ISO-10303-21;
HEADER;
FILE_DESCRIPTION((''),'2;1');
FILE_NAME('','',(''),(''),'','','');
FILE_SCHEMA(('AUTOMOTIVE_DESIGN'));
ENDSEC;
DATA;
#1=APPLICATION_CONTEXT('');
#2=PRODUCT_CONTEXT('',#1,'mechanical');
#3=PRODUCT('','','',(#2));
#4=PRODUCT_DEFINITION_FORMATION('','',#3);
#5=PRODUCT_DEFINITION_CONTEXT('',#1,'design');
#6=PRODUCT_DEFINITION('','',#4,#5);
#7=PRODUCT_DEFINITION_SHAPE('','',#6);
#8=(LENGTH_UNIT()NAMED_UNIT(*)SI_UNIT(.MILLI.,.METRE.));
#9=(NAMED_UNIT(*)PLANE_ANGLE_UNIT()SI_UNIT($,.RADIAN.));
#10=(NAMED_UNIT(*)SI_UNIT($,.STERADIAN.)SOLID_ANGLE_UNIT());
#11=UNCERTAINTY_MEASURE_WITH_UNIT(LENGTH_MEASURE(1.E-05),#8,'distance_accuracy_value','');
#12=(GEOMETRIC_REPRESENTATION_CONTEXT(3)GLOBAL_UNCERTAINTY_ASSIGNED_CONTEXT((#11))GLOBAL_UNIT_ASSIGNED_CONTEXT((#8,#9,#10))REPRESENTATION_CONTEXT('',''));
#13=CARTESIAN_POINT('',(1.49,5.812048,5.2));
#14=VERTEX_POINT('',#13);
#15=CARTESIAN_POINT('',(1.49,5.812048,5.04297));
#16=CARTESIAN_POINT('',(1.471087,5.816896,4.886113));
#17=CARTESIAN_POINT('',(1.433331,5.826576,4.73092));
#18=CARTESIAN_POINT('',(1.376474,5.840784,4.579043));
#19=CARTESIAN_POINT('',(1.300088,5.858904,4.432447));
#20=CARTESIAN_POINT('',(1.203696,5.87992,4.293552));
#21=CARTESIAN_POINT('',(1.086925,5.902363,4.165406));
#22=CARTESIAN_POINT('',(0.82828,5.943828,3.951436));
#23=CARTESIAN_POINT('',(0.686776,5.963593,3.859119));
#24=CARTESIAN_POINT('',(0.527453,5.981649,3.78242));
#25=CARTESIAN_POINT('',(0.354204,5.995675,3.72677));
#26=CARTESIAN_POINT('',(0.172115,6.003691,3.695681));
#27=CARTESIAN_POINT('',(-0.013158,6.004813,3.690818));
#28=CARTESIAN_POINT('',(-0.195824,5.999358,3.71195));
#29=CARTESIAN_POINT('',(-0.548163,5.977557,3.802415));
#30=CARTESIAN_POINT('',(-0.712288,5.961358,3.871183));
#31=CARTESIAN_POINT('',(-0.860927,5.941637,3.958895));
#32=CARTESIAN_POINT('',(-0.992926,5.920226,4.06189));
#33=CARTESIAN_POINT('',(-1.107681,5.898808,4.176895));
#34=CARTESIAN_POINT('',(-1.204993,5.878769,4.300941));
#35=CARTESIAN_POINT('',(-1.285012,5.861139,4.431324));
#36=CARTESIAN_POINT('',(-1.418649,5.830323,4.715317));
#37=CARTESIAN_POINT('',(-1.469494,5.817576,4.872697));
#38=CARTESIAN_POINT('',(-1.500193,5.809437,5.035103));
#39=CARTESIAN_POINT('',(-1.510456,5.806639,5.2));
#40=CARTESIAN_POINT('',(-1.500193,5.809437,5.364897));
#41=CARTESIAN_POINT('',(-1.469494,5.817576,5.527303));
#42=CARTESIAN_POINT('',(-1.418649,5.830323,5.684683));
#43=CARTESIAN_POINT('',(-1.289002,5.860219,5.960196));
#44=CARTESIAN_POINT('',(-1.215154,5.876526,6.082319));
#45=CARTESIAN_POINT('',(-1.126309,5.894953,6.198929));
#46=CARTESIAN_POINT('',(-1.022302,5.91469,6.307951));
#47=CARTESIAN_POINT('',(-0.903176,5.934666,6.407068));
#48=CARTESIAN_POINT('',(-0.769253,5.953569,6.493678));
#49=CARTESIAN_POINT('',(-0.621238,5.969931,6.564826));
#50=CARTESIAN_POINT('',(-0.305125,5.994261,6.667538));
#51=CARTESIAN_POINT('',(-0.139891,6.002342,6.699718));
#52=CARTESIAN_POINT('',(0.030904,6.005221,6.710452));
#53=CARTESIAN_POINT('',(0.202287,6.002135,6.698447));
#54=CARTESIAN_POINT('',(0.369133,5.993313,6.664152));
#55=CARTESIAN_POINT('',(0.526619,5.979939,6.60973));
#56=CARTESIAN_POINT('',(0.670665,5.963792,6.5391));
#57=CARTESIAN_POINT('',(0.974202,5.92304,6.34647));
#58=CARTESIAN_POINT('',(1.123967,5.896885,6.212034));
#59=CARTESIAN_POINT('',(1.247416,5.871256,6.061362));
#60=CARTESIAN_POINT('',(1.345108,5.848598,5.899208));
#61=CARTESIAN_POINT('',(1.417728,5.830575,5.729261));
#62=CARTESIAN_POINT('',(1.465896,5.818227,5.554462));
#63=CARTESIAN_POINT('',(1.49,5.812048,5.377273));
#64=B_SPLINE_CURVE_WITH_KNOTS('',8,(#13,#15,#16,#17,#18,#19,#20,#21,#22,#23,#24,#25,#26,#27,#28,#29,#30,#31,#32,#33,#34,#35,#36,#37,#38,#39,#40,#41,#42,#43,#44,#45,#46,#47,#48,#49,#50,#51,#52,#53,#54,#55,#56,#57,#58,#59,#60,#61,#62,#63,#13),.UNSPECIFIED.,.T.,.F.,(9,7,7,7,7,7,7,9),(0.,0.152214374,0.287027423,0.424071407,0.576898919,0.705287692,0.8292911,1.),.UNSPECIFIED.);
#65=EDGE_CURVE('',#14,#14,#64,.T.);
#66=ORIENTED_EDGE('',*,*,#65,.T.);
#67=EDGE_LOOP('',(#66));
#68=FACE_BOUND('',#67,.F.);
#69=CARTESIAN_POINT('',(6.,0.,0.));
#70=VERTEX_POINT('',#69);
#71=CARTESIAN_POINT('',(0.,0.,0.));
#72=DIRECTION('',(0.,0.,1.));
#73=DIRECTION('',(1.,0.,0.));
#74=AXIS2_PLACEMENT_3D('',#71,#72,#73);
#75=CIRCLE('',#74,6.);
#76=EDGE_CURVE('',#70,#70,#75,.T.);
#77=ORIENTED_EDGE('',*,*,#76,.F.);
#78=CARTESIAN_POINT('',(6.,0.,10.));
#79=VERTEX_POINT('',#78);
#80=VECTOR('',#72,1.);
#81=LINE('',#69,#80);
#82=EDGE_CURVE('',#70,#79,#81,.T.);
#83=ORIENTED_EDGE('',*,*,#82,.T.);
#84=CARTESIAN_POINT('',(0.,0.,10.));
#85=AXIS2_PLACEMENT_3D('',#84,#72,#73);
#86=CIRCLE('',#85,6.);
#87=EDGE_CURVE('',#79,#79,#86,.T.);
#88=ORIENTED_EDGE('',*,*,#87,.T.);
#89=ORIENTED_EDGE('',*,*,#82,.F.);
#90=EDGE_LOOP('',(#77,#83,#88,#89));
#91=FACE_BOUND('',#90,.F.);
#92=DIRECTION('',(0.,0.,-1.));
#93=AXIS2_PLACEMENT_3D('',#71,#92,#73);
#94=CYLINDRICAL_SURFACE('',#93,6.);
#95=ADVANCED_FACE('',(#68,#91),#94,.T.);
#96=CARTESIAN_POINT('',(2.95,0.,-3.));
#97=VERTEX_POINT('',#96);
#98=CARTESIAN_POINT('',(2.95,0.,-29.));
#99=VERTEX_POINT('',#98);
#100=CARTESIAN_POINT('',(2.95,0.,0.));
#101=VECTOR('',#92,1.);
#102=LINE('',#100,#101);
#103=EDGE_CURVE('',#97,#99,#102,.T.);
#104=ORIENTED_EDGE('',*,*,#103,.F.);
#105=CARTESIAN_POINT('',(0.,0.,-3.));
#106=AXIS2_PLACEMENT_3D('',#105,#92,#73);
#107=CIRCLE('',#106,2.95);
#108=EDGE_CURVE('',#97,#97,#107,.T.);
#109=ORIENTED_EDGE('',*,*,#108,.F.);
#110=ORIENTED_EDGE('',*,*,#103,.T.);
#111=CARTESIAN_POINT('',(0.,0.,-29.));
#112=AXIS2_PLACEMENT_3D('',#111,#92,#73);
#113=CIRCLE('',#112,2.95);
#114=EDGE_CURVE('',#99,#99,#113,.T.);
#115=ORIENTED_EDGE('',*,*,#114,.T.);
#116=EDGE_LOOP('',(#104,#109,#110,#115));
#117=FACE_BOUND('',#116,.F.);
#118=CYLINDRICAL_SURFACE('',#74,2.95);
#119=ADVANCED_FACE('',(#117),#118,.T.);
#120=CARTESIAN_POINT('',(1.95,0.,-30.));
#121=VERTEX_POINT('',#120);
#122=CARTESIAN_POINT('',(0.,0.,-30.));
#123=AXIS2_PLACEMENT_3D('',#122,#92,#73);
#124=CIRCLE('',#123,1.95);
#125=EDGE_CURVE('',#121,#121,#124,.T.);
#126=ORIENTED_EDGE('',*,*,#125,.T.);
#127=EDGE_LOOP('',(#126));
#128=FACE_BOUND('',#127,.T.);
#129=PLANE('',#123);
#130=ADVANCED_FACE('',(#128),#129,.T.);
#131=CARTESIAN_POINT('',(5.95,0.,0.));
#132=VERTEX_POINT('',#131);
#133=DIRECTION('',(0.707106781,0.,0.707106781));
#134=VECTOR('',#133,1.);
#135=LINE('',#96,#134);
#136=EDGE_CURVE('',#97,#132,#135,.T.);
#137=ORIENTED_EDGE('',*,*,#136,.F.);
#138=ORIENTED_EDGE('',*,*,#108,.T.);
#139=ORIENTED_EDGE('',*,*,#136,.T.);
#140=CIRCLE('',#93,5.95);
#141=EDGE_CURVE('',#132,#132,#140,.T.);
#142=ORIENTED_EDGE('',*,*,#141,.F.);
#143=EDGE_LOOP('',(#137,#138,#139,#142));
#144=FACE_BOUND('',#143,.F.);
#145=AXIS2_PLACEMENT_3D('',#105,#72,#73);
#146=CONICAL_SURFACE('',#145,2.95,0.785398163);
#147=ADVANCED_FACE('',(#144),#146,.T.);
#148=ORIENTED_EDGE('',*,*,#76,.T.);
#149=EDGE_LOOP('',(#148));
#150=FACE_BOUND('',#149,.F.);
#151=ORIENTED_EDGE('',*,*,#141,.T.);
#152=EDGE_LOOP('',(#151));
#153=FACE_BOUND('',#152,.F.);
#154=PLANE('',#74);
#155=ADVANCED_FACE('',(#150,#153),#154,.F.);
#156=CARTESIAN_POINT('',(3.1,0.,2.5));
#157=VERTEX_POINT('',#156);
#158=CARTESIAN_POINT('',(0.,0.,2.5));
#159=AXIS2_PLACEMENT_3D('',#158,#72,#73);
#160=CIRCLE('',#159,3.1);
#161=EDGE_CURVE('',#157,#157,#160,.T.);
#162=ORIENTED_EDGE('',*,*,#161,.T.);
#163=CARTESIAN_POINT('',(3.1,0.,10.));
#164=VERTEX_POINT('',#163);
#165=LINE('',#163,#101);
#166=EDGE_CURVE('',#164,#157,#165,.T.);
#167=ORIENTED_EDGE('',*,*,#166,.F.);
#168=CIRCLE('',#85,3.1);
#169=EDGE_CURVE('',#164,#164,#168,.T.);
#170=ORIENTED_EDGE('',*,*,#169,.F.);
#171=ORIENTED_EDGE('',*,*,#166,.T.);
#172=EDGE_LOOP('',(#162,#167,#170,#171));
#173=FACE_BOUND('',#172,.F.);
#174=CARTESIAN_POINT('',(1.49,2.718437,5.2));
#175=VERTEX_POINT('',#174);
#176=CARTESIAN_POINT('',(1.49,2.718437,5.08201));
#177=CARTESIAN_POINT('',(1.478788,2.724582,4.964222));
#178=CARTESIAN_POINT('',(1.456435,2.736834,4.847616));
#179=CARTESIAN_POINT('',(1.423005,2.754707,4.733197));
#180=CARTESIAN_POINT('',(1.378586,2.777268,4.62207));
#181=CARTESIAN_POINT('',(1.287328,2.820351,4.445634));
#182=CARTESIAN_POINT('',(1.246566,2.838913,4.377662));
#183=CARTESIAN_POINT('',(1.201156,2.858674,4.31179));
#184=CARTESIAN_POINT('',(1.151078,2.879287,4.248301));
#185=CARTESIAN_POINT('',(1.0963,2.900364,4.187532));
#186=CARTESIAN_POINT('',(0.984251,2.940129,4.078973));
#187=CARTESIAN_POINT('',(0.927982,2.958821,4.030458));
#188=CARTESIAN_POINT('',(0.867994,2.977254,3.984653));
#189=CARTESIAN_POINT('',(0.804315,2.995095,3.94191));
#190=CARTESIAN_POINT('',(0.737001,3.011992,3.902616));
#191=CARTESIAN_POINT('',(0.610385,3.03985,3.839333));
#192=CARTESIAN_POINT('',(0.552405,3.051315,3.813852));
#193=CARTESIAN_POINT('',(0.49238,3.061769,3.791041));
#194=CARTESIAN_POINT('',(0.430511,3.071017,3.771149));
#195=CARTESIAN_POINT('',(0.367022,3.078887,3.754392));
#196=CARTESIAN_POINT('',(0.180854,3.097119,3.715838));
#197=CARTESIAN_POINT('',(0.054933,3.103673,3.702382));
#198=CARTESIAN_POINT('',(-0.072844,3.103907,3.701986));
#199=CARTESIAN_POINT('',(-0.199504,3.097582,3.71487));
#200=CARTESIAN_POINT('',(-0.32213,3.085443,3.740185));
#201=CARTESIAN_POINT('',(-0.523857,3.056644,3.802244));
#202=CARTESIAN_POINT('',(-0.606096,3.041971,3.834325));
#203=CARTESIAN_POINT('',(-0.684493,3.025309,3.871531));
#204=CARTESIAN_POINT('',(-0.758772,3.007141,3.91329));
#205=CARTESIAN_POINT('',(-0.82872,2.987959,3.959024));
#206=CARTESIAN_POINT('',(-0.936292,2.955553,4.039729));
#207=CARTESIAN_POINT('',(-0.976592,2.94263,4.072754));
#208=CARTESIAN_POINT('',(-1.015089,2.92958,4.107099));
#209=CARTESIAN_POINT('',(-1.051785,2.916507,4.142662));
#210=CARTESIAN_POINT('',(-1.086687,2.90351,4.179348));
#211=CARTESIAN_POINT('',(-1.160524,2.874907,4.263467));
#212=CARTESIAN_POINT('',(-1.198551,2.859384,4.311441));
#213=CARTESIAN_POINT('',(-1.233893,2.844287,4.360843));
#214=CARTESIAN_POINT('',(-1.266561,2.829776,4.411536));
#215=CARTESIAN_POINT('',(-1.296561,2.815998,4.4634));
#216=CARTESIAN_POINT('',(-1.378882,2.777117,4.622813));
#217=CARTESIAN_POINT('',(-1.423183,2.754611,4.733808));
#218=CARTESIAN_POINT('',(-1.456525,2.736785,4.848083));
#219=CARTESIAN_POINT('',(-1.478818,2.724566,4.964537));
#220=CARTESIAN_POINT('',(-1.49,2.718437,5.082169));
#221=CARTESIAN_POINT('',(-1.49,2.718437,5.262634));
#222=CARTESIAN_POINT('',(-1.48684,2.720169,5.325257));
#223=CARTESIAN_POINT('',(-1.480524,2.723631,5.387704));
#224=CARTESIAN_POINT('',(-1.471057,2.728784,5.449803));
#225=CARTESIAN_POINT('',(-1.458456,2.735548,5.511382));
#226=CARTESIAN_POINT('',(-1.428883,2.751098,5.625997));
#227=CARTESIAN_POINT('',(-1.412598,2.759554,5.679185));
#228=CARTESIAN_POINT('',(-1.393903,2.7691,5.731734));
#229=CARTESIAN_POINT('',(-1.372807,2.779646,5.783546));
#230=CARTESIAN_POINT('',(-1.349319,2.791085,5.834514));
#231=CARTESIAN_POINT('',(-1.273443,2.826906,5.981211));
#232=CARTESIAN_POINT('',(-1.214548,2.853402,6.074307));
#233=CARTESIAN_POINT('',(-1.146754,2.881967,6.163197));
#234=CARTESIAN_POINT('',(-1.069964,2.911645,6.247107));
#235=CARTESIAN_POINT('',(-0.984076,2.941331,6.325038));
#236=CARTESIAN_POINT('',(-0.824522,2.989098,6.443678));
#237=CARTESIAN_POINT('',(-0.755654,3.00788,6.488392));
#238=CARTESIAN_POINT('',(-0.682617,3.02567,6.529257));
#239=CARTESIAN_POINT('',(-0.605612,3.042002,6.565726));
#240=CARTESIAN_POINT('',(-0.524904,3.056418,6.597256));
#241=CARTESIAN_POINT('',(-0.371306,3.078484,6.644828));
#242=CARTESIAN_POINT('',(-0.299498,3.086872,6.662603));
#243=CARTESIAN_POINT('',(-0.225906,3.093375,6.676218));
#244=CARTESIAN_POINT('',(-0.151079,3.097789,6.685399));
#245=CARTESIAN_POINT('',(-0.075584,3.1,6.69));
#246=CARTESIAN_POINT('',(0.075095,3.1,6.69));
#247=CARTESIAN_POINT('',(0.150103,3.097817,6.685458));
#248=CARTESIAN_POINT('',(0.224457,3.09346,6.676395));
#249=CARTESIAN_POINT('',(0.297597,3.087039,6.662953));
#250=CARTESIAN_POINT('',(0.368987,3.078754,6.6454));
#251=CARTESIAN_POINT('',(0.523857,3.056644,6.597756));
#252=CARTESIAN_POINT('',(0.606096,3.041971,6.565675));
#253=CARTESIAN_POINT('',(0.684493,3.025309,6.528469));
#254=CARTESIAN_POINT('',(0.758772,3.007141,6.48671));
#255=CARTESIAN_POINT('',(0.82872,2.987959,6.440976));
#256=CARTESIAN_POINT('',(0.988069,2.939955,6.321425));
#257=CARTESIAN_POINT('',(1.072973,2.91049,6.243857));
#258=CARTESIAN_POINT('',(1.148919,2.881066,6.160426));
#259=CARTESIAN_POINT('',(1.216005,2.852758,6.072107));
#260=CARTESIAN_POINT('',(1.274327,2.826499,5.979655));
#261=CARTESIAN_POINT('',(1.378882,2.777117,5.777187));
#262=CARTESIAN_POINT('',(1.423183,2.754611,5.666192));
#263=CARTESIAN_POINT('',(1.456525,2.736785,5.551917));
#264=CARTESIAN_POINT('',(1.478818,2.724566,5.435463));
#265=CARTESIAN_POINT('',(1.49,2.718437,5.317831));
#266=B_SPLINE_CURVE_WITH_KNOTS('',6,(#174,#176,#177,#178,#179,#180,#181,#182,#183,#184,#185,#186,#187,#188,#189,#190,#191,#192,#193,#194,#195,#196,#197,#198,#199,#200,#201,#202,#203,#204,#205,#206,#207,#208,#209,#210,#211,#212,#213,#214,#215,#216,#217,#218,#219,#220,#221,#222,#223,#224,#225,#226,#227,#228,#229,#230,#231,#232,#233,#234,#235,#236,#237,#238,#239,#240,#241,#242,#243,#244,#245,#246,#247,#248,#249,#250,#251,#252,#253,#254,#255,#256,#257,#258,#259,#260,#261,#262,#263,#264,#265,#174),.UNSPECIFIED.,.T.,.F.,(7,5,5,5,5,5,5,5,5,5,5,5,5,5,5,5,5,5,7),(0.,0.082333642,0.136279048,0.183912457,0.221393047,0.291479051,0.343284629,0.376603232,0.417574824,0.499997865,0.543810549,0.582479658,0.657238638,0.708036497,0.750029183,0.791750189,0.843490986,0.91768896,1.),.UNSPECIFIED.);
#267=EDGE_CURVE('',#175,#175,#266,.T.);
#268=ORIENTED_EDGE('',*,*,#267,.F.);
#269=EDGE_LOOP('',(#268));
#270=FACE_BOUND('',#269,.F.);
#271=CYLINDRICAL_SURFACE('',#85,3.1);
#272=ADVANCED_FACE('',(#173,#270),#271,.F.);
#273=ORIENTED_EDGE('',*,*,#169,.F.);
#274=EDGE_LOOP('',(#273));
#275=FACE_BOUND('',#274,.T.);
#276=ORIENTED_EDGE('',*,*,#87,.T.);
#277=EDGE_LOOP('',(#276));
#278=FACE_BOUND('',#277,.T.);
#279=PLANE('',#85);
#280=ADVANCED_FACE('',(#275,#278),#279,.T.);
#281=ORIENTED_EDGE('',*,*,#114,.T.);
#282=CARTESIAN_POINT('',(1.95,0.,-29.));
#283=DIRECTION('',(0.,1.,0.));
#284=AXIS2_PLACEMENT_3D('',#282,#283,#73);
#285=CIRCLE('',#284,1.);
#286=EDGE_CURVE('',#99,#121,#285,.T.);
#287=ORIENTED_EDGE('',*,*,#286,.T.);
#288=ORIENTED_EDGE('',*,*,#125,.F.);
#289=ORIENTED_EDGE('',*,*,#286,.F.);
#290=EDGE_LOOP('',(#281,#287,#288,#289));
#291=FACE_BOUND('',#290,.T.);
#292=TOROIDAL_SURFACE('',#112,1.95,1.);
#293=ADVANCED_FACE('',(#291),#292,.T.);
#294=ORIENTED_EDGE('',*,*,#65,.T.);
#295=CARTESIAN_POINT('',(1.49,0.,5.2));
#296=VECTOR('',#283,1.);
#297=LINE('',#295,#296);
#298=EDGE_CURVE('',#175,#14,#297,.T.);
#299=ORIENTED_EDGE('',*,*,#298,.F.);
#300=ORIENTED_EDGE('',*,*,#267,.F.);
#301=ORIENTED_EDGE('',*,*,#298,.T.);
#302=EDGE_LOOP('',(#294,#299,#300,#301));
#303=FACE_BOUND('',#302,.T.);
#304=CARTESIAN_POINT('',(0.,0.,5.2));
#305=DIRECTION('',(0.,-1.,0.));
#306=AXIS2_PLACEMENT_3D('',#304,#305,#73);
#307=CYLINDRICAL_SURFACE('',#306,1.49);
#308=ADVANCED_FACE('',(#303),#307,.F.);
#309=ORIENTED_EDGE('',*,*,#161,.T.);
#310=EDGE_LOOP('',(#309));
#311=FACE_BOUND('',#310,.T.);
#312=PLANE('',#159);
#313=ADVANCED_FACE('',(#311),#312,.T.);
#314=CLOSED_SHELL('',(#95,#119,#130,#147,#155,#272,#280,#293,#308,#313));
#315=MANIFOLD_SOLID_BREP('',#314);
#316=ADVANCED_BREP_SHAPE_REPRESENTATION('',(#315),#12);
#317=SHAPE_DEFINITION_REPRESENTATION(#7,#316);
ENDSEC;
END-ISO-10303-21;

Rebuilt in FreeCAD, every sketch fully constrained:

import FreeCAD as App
import Part
import Sketcher
from FreeCAD import Vector
Q = App.Units.Quantity


def edges_at(feature, points):
    """Names of the edges that pass closest to the given points."""
    edges = feature.Shape.Edges
    near = lambda p: min(range(len(edges)), key=lambda i: edges[i].distToShape(Part.Vertex(*p))[0])
    return sorted({f"Edge{near(p) + 1}" for p in points})

doc = App.newDocument("Part")
body = doc.addObject("PartDesign::Body", "Body")

# Sketch on XZ plane
sketch1 = doc.addObject("Sketcher::SketchObject", "Sketch")
body.addObject(sketch1)
sketch1.AttachmentSupport = (doc.XZ_Plane, [""])
sketch1.MapMode = "FlatFace"
sketch1.addGeometry(Part.Circle(Vector(0, 5.2, 0), Vector(0, 0, 1), 1.5), False)
sketch1.addConstraint(Sketcher.Constraint("PointOnObject", 0, 3, -2))
sketch1.addConstraint(Sketcher.Constraint("Diameter", 0, Q("2.98 mm")))
sketch1.addConstraint(Sketcher.Constraint("DistanceY", -1, 1, 0, 3, Q("5.2 mm")))
pad1 = doc.addObject("PartDesign::Pad", "Pad")
body.addObject(pad1)
pad1.Profile = sketch1
pad1.Length = 20
pad1.Reversed = True
body2 = doc.addObject("PartDesign::Body", "Body001")

# Sketch on XY plane
sketch2 = doc.addObject("Sketcher::SketchObject", "Sketch001")
body2.addObject(sketch2)
sketch2.AttachmentSupport = (doc.getObject("XY_Plane001"), [""])
sketch2.MapMode = "FlatFace"
sketch2.addGeometry(Part.Circle(Vector(0, 0, 0), Vector(0, 0, 1), 6), False)
sketch2.addConstraint(Sketcher.Constraint("Coincident", 0, 3, -1, 1))
sketch2.addConstraint(Sketcher.Constraint("Diameter", 0, Q("12 mm")))
pad2 = doc.addObject("PartDesign::Pad", "Pad001")
body2.addObject(pad2)
pad2.Profile = sketch2
pad2.Length = 10

# Sketch on XY plane
sketch3 = doc.addObject("Sketcher::SketchObject", "Sketch002")
body2.addObject(sketch3)
sketch3.AttachmentSupport = (doc.getObject("XY_Plane001"), [""])
sketch3.MapMode = "FlatFace"
sketch3.AttachmentOffset = App.Placement(Vector(0, 0, 10), App.Rotation())
sketch3.addGeometry(Part.Circle(Vector(0, 0, 0), Vector(0, 0, 1), 3.1), False)
sketch3.addConstraint(Sketcher.Constraint("Coincident", 0, 3, -1, 1))
sketch3.addConstraint(Sketcher.Constraint("Diameter", 0, Q("6.2 mm")))
pocket1 = doc.addObject("PartDesign::Pocket", "Pocket")
body2.addObject(pocket1)
pocket1.Profile = sketch3
pocket1.Length = 7.5

# Sketch on XY plane
sketch4 = doc.addObject("Sketcher::SketchObject", "Sketch003")
body2.addObject(sketch4)
sketch4.AttachmentSupport = (doc.getObject("XY_Plane001"), [""])
sketch4.MapMode = "FlatFace"
sketch4.addGeometry(Part.Circle(Vector(0, 0, 0), Vector(0, 0, 1), 3), False)
sketch4.addConstraint(Sketcher.Constraint("Coincident", 0, 3, -1, 1))
sketch4.addConstraint(Sketcher.Constraint("Diameter", 0, Q("5.9 mm")))
pad3 = doc.addObject("PartDesign::Pad", "Pad002")
body2.addObject(pad3)
pad3.Profile = sketch4
pad3.Length = 30
pad3.Reversed = True
doc.recompute()

fillet = doc.addObject("PartDesign::Fillet", "Fillet")
body2.addObject(fillet)
fillet.Base = (pad3, edges_at(pad3, [(-2.95, 0, -30)]))
fillet.Radius = 1
doc.recompute()

chamfer = doc.addObject("PartDesign::Chamfer", "Chamfer")
body2.addObject(chamfer)
chamfer.Base = (fillet, edges_at(fillet, [(-2.95, 0, 0)]))
chamfer.Size = 3
doc.recompute()

boolean = doc.addObject("PartDesign::Boolean", "Boolean")
body2.addObject(boolean)
boolean.Type = "Cut"
boolean.addObjects([body])

doc.recompute()
